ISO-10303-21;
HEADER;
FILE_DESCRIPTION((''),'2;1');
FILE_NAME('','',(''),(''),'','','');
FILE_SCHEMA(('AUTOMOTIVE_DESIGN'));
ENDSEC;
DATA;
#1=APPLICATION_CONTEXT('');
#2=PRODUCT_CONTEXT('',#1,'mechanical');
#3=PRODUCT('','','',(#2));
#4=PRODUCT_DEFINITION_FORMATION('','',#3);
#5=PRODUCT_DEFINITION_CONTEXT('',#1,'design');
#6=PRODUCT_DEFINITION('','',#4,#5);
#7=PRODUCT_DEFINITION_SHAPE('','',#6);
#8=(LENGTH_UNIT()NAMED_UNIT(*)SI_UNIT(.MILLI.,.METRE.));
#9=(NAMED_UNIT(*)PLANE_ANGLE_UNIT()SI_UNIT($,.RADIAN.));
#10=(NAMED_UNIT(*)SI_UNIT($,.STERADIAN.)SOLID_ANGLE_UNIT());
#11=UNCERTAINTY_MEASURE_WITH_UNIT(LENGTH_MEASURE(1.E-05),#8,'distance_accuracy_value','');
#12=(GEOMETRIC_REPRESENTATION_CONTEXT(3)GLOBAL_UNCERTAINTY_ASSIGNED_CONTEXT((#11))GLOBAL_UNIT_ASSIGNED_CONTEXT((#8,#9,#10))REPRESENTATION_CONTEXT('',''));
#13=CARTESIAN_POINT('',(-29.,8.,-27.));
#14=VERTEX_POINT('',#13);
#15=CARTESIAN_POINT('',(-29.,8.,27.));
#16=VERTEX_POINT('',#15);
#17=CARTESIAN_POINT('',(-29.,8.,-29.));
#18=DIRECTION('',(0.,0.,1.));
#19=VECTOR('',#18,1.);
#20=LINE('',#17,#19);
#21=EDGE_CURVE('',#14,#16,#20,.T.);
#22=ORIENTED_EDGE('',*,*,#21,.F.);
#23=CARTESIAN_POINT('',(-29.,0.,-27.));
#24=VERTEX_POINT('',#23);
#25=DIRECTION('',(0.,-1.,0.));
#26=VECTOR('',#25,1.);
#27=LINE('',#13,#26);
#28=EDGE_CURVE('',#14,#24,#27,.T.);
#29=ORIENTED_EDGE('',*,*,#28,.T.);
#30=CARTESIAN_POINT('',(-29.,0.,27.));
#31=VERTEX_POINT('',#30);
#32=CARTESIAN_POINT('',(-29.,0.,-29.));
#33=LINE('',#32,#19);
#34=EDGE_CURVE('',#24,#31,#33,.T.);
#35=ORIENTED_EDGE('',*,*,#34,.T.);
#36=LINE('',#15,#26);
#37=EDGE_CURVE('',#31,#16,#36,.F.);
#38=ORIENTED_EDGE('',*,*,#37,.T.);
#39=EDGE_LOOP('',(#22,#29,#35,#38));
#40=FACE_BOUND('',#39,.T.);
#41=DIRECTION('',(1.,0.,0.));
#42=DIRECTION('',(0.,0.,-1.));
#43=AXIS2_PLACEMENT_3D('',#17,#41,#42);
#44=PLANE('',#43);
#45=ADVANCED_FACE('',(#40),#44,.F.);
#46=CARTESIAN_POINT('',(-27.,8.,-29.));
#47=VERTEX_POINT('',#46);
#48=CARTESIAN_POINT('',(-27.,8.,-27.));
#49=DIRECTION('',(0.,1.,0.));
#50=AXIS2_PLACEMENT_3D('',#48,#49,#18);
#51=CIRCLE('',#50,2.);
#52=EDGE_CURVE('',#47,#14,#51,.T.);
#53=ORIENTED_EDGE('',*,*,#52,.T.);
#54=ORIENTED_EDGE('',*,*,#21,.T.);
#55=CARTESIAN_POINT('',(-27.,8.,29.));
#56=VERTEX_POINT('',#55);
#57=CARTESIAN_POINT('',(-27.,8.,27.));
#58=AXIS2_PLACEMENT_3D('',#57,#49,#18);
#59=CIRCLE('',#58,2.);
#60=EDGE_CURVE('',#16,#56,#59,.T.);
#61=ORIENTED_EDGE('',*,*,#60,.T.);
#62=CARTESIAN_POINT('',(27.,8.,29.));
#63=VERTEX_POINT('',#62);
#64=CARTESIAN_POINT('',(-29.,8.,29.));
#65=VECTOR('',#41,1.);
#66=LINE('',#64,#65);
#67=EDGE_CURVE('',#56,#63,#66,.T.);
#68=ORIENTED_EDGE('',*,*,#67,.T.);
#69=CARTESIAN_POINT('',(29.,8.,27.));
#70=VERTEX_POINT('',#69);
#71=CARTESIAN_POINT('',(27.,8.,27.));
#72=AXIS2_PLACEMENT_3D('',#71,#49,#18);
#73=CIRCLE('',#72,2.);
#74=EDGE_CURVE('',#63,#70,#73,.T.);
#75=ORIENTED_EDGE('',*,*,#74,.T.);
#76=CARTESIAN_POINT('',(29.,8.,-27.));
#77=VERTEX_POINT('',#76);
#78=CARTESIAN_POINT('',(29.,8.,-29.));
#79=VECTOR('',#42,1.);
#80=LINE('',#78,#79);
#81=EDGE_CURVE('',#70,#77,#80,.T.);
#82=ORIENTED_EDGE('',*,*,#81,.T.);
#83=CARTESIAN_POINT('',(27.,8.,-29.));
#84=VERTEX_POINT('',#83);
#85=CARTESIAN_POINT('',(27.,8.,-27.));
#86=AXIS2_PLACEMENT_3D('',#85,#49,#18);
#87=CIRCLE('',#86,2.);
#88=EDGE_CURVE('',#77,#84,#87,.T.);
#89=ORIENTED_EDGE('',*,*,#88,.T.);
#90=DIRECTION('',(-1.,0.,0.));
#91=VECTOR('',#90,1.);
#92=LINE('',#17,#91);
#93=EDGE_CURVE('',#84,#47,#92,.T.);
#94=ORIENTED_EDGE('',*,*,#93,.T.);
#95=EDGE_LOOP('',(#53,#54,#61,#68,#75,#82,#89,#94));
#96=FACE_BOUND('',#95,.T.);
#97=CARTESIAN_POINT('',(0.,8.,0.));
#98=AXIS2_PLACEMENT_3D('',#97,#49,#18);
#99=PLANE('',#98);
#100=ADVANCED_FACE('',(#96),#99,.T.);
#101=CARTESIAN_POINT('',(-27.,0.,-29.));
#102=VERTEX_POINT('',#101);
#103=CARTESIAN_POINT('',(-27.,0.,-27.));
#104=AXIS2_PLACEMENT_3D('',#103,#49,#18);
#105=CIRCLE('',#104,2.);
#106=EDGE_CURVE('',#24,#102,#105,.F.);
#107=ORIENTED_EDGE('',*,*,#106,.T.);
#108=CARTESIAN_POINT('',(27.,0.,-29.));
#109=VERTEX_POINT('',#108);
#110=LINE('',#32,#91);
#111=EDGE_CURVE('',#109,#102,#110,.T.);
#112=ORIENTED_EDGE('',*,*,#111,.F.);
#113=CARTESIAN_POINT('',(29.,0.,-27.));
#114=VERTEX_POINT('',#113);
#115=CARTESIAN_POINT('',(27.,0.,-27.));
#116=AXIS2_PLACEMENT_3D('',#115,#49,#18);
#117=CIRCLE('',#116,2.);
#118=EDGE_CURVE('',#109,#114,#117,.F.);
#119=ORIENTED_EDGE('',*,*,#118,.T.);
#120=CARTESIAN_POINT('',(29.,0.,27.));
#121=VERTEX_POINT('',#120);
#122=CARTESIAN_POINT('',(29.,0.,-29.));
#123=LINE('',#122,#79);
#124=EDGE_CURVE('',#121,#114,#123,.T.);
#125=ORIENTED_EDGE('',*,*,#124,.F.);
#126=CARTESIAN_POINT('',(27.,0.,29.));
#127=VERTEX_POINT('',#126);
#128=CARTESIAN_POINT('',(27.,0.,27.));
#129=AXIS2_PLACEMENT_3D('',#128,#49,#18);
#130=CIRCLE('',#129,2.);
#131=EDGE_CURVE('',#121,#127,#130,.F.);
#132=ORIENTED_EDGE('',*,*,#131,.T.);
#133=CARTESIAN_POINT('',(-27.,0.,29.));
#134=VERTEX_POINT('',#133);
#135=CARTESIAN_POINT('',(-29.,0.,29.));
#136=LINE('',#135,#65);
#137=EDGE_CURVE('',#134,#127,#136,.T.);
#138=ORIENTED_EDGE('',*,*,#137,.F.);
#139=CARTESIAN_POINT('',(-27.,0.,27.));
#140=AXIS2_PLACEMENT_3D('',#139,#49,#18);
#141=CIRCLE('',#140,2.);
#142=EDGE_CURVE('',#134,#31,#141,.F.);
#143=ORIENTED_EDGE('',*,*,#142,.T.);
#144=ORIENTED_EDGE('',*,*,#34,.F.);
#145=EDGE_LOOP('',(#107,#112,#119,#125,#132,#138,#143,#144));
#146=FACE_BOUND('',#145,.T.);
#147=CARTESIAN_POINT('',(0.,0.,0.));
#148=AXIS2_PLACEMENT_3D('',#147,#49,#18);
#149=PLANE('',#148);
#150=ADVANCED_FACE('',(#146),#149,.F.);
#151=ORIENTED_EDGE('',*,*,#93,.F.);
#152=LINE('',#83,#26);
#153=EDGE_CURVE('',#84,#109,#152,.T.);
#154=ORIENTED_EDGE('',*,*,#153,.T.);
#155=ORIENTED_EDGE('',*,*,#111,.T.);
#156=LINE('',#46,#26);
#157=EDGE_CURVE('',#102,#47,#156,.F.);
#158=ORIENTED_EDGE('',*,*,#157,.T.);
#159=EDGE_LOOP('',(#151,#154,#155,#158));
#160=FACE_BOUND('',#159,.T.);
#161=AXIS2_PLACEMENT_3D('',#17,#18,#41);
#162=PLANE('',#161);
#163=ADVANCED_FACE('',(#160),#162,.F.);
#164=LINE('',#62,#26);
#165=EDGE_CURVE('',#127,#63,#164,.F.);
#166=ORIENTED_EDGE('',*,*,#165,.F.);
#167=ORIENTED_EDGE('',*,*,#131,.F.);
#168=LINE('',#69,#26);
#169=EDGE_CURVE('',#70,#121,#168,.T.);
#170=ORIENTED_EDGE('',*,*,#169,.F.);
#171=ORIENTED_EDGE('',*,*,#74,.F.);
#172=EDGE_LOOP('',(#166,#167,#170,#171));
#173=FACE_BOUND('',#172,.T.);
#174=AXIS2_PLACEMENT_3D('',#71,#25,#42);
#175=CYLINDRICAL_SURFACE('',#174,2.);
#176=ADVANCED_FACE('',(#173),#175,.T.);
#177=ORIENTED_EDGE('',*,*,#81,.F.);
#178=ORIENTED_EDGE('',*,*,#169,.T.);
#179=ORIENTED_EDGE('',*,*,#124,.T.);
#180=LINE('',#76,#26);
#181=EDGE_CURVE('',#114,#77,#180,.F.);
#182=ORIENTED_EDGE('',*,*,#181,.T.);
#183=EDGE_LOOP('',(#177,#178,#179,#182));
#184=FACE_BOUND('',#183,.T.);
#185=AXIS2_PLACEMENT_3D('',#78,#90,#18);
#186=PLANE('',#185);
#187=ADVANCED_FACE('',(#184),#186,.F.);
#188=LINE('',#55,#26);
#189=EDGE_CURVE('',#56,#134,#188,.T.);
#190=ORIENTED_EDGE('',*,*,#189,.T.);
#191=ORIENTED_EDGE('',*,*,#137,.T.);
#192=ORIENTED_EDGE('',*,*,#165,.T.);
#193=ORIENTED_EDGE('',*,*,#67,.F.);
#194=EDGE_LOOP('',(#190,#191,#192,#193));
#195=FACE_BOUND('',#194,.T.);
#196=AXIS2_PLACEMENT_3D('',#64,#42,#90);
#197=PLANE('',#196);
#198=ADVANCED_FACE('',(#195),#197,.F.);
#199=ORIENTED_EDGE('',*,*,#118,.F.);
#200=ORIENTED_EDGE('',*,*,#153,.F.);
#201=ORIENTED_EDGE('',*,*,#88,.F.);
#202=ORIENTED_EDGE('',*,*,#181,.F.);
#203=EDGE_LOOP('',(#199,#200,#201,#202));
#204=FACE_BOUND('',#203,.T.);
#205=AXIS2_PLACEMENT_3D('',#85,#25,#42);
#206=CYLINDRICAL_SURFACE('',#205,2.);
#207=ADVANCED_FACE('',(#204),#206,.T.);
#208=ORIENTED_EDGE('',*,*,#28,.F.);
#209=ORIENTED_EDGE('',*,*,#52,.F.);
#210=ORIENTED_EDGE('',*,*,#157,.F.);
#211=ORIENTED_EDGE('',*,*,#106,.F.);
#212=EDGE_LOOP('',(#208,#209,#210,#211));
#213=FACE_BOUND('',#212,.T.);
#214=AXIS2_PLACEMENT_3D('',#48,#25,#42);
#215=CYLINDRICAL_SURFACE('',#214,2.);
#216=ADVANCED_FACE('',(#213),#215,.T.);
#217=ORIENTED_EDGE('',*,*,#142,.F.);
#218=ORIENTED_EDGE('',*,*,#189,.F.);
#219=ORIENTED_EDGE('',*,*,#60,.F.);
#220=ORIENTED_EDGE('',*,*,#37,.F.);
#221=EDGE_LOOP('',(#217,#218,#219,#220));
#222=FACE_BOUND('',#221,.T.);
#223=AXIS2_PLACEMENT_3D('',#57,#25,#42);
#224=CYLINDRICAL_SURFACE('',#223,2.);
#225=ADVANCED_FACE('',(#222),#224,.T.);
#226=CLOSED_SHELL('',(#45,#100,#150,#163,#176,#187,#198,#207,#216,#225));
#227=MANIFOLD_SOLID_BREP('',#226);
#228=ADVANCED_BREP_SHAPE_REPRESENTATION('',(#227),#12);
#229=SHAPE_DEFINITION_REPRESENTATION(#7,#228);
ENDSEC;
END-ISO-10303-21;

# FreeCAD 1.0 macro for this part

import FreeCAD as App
import Part
import Sketcher
from FreeCAD import Vector


def edges_at(feature, points):
    """Names of the edges that pass closest to the given points."""
    edges = feature.Shape.Edges
    near = lambda p: min(range(len(edges)), key=lambda i: edges[i].distToShape(Part.Vertex(*p))[0])
    return sorted({f"Edge{near(p) + 1}" for p in points})

doc = App.newDocument("Part")
params = doc.addObject("Spreadsheet::Sheet", "Params")
for row, (alias, value) in enumerate([
    ("sketch1_width", "58 mm"),
    ("pad1_length", "8 mm"),
    ("fillet_radius", "2 mm"),
], start=1):
    params.set(f"A{row}", alias)
    params.set(f"B{row}", "=" + value)
    params.setAlias(f"B{row}", alias)

body = doc.addObject("PartDesign::Body", "Body")

# Sketch on XZ plane
sketch1 = doc.addObject("Sketcher::SketchObject", "Sketch")
body.addObject(sketch1)
sketch1.AttachmentSupport = (doc.XZ_Plane, [""])
sketch1.MapMode = "FlatFace"
sketch1.addGeometry([
    Part.LineSegment(Vector(-29, -29, 0), Vector(-29, 29, 0)),
    Part.LineSegment(Vector(-29, 29, 0), Vector(29, 29, 0)),
    Part.LineSegment(Vector(29, 29, 0), Vector(29, -29, 0)),
    Part.LineSegment(Vector(29, -29, 0), Vector(-29, -29, 0)),
], False)
sketch1.addConstraint([
    Sketcher.Constraint("Coincident", 0, 2, 1, 1),
    Sketcher.Constraint("Coincident", 1, 2, 2, 1),
    Sketcher.Constraint("Coincident", 2, 2, 3, 1),
    Sketcher.Constraint("Coincident", 3, 2, 0, 1),
    Sketcher.Constraint("Vertical", 0),
    Sketcher.Constraint("Horizontal", 1),
    Sketcher.Constraint("Vertical", 2),
    Sketcher.Constraint("Horizontal", 3),
    Sketcher.Constraint("Symmetric", 0, 2, 2, 2, -1, 1),
    Sketcher.Constraint("Equal", 3, 0),
    Sketcher.Constraint("DistanceX", 1, 1, 1, 2, 58.0),
])
sketch1.setExpression("Constraints[10]", "Params.sketch1_width")
pad1 = doc.addObject("PartDesign::Pad", "Pad")
body.addObject(pad1)
pad1.Profile = sketch1
pad1.setExpression("Length", "Params.pad1_length")
pad1.Reversed = True
doc.recompute()

fillet = doc.addObject("PartDesign::Fillet", "Fillet")
body.addObject(fillet)
fillet.Base = (pad1, edges_at(pad1, [
    (-29, 4, -29),
    (29, 4, -29),
    (29, 4, 29),
    (-29, 4, 29),
]))
fillet.setExpression("Radius", "Params.fillet_radius")

doc.recompute()
